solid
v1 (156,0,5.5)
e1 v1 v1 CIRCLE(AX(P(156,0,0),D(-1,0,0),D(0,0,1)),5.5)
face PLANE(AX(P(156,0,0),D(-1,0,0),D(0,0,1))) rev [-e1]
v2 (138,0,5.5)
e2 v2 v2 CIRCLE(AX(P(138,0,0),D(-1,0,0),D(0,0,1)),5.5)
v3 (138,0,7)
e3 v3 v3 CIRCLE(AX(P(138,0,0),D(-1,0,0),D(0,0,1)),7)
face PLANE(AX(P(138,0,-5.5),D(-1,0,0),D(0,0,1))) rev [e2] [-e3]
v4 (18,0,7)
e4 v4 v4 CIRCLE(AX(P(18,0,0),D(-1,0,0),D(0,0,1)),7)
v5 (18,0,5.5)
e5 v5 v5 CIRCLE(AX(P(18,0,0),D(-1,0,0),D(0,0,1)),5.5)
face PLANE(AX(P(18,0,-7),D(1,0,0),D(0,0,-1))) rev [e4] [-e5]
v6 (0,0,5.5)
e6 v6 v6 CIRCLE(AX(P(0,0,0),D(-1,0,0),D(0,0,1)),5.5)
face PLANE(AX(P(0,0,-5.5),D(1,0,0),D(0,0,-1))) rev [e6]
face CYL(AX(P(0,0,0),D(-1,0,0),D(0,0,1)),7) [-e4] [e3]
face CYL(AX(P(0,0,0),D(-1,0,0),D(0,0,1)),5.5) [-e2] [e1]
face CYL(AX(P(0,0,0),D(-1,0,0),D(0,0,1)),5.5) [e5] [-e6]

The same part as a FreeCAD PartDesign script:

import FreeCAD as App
import Part
import Sketcher

V = App.Vector


def add_polygon(sketch, points):
    """Adds a closed chain of lines whose ends are joined by coincident constraints."""
    first, n = sketch.GeometryCount, len(points)
    for a, b in zip(points, points[1:] + points[:1]):
        sketch.addGeometry(Part.LineSegment(App.Vector(*a, 0), App.Vector(*b, 0)), False)
    for i in range(n):
        sketch.addConstraint(Sketcher.Constraint("Coincident", first + i, 2, first + (i + 1) % n, 1))

doc = App.newDocument("Part")
body = doc.addObject("PartDesign::Body", "Body")

# Sketch on XZ plane
sketch1 = doc.addObject("Sketcher::SketchObject", "Sketch")
body.addObject(sketch1)
sketch1.AttachmentSupport = (doc.XZ_Plane, [""])
sketch1.MapMode = "FlatFace"
add_polygon(sketch1, [(0, 0), (156, 0), (156, -5.5), (138, -5.5), (138, -7), (18, -7), (18, -5.5), (0, -5.5)])  # lines 0-7
sketch1.addConstraint([
    Sketcher.Constraint("Horizontal", 0),
    Sketcher.Constraint("Vertical", 1),
    Sketcher.Constraint("Horizontal", 2),
    Sketcher.Constraint("Vertical", 3),
    Sketcher.Constraint("Horizontal", 4),
    Sketcher.Constraint("Vertical", 5),
    Sketcher.Constraint("Horizontal", 6),
    Sketcher.Constraint("Vertical", 7),
    Sketcher.Constraint("Coincident", 7, 2, -1, 1),
    Sketcher.Constraint("Horizontal", 2, 2, 5, 2),
    Sketcher.Constraint("Equal", 2, 6),
    Sketcher.Constraint("DistanceX", 0, 1, 0, 2, 156.0),
    Sketcher.Constraint("DistanceX", 2, 2, 2, 1, 18.0),
    Sketcher.Constraint("DistanceY", 1, 2, 1, 1, 5.5),
    Sketcher.Constraint("DistanceY", 3, 2, 3, 1, 1.5),
])
revolution = doc.addObject("PartDesign::Revolution", "Revolution")
body.addObject(revolution)
revolution.Profile = sketch1
revolution.ReferenceAxis = (sketch1, ["H_Axis"])
revolution.Angle = 360

doc.recompute()
